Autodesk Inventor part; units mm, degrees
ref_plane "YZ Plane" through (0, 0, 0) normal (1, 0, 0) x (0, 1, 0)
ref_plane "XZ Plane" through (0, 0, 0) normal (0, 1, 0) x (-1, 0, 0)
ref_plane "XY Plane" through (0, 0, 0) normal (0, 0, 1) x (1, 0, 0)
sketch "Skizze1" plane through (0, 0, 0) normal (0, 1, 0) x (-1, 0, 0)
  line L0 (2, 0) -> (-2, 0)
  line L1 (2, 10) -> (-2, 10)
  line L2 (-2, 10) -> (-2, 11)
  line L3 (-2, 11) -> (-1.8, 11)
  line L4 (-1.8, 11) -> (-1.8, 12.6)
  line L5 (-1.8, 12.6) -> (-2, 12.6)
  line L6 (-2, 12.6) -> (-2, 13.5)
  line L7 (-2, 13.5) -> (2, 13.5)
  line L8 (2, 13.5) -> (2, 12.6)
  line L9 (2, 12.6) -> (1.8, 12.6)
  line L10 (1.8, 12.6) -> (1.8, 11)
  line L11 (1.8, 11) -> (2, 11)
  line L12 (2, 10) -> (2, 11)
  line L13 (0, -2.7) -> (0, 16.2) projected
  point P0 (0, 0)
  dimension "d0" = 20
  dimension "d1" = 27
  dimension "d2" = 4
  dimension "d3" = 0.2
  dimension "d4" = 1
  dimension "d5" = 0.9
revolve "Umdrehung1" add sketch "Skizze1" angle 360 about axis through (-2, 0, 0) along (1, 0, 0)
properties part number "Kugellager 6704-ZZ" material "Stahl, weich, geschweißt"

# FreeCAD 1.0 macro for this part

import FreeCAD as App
import Part
import Sketcher

V = App.Vector

doc = App.newDocument("Part")
body = doc.addObject("PartDesign::Body", "Body")

# Sketch on XZ plane
sketch1 = body.newObject("Sketcher::SketchObject", "Sketch")
sketch1.AttachmentSupport = (doc.getObject("XZ_Plane"), [""])
sketch1.MapMode = "FlatFace"
sketch1.addGeometry([
    Part.LineSegment(V(-2, 10, 0), V(-2, 11, 0)),  # 0
    Part.LineSegment(V(-2, 11, 0), V(-1.8, 11, 0)),  # 1
    Part.LineSegment(V(-1.8, 11, 0), V(-1.8, 12.6, 0)),  # 2
    Part.LineSegment(V(-1.8, 12.6, 0), V(-2, 12.6, 0)),  # 3
    Part.LineSegment(V(-2, 12.6, 0), V(-2, 13.5, 0)),  # 4
    Part.LineSegment(V(-2, 13.5, 0), V(2, 13.5, 0)),  # 5
    Part.LineSegment(V(2, 13.5, 0), V(2, 12.6, 0)),  # 6
    Part.LineSegment(V(2, 12.6, 0), V(1.8, 12.6, 0)),  # 7
    Part.LineSegment(V(1.8, 12.6, 0), V(1.8, 11, 0)),  # 8
    Part.LineSegment(V(1.8, 11, 0), V(2, 11, 0)),  # 9
    Part.LineSegment(V(2, 11, 0), V(2, 10, 0)),  # 10
    Part.LineSegment(V(2, 10, 0), V(-2, 10, 0)),  # 11
], False)
sketch1.addConstraint([
    Sketcher.Constraint("Coincident", 0, 2, 1, 1),
    Sketcher.Constraint("Coincident", 1, 2, 2, 1),
    Sketcher.Constraint("Coincident", 2, 2, 3, 1),
    Sketcher.Constraint("Coincident", 3, 2, 4, 1),
    Sketcher.Constraint("Coincident", 4, 2, 5, 1),
    Sketcher.Constraint("Coincident", 5, 2, 6, 1),
    Sketcher.Constraint("Coincident", 6, 2, 7, 1),
    Sketcher.Constraint("Coincident", 7, 2, 8, 1),
    Sketcher.Constraint("Coincident", 8, 2, 9, 1),
    Sketcher.Constraint("Coincident", 9, 2, 10, 1),
    Sketcher.Constraint("Coincident", 10, 2, 11, 1),
    Sketcher.Constraint("Coincident", 11, 2, 0, 1),
    Sketcher.Constraint("Vertical", 0),
    Sketcher.Constraint("Horizontal", 1),
    Sketcher.Constraint("Vertical", 2),
    Sketcher.Constraint("Horizontal", 3),
    Sketcher.Constraint("Vertical", 4),
    Sketcher.Constraint("Horizontal", 5),
    Sketcher.Constraint("Vertical", 6),
    Sketcher.Constraint("Horizontal", 7),
    Sketcher.Constraint("Vertical", 8),
    Sketcher.Constraint("Horizontal", 9),
    Sketcher.Constraint("Vertical", 10),
    Sketcher.Constraint("Horizontal", 11),
    Sketcher.Constraint("Symmetric", 3, 2, 6, 2, -2),
    Sketcher.Constraint("Symmetric", 1, 2, 8, 2, -2),
    Sketcher.Constraint("Vertical", 0, 2, 3, 2),
    Sketcher.Constraint("Vertical", 6, 2, 9, 2),
    Sketcher.Constraint("DistanceX", 5, 1, 5, 2, 4.0),
    Sketcher.Constraint("DistanceY", 0, 1, 0, 2, 1.0),
    Sketcher.Constraint("DistanceX", 1, 1, 1, 2, 0.2),
    Sketcher.Constraint("DistanceY", 4, 1, 4, 2, 0.9),
    Sketcher.Constraint("DistanceY", 2, 1, 2, 2, 1.6),
    Sketcher.Constraint("DistanceY", -1, 1, 0, 2, 11.0),
])
revolution = body.newObject("PartDesign::Revolution", "Revolution")
revolution.Profile = sketch1
revolution.ReferenceAxis = (sketch1, ["H_Axis"])
revolution.Angle = 360

doc.recompute()
